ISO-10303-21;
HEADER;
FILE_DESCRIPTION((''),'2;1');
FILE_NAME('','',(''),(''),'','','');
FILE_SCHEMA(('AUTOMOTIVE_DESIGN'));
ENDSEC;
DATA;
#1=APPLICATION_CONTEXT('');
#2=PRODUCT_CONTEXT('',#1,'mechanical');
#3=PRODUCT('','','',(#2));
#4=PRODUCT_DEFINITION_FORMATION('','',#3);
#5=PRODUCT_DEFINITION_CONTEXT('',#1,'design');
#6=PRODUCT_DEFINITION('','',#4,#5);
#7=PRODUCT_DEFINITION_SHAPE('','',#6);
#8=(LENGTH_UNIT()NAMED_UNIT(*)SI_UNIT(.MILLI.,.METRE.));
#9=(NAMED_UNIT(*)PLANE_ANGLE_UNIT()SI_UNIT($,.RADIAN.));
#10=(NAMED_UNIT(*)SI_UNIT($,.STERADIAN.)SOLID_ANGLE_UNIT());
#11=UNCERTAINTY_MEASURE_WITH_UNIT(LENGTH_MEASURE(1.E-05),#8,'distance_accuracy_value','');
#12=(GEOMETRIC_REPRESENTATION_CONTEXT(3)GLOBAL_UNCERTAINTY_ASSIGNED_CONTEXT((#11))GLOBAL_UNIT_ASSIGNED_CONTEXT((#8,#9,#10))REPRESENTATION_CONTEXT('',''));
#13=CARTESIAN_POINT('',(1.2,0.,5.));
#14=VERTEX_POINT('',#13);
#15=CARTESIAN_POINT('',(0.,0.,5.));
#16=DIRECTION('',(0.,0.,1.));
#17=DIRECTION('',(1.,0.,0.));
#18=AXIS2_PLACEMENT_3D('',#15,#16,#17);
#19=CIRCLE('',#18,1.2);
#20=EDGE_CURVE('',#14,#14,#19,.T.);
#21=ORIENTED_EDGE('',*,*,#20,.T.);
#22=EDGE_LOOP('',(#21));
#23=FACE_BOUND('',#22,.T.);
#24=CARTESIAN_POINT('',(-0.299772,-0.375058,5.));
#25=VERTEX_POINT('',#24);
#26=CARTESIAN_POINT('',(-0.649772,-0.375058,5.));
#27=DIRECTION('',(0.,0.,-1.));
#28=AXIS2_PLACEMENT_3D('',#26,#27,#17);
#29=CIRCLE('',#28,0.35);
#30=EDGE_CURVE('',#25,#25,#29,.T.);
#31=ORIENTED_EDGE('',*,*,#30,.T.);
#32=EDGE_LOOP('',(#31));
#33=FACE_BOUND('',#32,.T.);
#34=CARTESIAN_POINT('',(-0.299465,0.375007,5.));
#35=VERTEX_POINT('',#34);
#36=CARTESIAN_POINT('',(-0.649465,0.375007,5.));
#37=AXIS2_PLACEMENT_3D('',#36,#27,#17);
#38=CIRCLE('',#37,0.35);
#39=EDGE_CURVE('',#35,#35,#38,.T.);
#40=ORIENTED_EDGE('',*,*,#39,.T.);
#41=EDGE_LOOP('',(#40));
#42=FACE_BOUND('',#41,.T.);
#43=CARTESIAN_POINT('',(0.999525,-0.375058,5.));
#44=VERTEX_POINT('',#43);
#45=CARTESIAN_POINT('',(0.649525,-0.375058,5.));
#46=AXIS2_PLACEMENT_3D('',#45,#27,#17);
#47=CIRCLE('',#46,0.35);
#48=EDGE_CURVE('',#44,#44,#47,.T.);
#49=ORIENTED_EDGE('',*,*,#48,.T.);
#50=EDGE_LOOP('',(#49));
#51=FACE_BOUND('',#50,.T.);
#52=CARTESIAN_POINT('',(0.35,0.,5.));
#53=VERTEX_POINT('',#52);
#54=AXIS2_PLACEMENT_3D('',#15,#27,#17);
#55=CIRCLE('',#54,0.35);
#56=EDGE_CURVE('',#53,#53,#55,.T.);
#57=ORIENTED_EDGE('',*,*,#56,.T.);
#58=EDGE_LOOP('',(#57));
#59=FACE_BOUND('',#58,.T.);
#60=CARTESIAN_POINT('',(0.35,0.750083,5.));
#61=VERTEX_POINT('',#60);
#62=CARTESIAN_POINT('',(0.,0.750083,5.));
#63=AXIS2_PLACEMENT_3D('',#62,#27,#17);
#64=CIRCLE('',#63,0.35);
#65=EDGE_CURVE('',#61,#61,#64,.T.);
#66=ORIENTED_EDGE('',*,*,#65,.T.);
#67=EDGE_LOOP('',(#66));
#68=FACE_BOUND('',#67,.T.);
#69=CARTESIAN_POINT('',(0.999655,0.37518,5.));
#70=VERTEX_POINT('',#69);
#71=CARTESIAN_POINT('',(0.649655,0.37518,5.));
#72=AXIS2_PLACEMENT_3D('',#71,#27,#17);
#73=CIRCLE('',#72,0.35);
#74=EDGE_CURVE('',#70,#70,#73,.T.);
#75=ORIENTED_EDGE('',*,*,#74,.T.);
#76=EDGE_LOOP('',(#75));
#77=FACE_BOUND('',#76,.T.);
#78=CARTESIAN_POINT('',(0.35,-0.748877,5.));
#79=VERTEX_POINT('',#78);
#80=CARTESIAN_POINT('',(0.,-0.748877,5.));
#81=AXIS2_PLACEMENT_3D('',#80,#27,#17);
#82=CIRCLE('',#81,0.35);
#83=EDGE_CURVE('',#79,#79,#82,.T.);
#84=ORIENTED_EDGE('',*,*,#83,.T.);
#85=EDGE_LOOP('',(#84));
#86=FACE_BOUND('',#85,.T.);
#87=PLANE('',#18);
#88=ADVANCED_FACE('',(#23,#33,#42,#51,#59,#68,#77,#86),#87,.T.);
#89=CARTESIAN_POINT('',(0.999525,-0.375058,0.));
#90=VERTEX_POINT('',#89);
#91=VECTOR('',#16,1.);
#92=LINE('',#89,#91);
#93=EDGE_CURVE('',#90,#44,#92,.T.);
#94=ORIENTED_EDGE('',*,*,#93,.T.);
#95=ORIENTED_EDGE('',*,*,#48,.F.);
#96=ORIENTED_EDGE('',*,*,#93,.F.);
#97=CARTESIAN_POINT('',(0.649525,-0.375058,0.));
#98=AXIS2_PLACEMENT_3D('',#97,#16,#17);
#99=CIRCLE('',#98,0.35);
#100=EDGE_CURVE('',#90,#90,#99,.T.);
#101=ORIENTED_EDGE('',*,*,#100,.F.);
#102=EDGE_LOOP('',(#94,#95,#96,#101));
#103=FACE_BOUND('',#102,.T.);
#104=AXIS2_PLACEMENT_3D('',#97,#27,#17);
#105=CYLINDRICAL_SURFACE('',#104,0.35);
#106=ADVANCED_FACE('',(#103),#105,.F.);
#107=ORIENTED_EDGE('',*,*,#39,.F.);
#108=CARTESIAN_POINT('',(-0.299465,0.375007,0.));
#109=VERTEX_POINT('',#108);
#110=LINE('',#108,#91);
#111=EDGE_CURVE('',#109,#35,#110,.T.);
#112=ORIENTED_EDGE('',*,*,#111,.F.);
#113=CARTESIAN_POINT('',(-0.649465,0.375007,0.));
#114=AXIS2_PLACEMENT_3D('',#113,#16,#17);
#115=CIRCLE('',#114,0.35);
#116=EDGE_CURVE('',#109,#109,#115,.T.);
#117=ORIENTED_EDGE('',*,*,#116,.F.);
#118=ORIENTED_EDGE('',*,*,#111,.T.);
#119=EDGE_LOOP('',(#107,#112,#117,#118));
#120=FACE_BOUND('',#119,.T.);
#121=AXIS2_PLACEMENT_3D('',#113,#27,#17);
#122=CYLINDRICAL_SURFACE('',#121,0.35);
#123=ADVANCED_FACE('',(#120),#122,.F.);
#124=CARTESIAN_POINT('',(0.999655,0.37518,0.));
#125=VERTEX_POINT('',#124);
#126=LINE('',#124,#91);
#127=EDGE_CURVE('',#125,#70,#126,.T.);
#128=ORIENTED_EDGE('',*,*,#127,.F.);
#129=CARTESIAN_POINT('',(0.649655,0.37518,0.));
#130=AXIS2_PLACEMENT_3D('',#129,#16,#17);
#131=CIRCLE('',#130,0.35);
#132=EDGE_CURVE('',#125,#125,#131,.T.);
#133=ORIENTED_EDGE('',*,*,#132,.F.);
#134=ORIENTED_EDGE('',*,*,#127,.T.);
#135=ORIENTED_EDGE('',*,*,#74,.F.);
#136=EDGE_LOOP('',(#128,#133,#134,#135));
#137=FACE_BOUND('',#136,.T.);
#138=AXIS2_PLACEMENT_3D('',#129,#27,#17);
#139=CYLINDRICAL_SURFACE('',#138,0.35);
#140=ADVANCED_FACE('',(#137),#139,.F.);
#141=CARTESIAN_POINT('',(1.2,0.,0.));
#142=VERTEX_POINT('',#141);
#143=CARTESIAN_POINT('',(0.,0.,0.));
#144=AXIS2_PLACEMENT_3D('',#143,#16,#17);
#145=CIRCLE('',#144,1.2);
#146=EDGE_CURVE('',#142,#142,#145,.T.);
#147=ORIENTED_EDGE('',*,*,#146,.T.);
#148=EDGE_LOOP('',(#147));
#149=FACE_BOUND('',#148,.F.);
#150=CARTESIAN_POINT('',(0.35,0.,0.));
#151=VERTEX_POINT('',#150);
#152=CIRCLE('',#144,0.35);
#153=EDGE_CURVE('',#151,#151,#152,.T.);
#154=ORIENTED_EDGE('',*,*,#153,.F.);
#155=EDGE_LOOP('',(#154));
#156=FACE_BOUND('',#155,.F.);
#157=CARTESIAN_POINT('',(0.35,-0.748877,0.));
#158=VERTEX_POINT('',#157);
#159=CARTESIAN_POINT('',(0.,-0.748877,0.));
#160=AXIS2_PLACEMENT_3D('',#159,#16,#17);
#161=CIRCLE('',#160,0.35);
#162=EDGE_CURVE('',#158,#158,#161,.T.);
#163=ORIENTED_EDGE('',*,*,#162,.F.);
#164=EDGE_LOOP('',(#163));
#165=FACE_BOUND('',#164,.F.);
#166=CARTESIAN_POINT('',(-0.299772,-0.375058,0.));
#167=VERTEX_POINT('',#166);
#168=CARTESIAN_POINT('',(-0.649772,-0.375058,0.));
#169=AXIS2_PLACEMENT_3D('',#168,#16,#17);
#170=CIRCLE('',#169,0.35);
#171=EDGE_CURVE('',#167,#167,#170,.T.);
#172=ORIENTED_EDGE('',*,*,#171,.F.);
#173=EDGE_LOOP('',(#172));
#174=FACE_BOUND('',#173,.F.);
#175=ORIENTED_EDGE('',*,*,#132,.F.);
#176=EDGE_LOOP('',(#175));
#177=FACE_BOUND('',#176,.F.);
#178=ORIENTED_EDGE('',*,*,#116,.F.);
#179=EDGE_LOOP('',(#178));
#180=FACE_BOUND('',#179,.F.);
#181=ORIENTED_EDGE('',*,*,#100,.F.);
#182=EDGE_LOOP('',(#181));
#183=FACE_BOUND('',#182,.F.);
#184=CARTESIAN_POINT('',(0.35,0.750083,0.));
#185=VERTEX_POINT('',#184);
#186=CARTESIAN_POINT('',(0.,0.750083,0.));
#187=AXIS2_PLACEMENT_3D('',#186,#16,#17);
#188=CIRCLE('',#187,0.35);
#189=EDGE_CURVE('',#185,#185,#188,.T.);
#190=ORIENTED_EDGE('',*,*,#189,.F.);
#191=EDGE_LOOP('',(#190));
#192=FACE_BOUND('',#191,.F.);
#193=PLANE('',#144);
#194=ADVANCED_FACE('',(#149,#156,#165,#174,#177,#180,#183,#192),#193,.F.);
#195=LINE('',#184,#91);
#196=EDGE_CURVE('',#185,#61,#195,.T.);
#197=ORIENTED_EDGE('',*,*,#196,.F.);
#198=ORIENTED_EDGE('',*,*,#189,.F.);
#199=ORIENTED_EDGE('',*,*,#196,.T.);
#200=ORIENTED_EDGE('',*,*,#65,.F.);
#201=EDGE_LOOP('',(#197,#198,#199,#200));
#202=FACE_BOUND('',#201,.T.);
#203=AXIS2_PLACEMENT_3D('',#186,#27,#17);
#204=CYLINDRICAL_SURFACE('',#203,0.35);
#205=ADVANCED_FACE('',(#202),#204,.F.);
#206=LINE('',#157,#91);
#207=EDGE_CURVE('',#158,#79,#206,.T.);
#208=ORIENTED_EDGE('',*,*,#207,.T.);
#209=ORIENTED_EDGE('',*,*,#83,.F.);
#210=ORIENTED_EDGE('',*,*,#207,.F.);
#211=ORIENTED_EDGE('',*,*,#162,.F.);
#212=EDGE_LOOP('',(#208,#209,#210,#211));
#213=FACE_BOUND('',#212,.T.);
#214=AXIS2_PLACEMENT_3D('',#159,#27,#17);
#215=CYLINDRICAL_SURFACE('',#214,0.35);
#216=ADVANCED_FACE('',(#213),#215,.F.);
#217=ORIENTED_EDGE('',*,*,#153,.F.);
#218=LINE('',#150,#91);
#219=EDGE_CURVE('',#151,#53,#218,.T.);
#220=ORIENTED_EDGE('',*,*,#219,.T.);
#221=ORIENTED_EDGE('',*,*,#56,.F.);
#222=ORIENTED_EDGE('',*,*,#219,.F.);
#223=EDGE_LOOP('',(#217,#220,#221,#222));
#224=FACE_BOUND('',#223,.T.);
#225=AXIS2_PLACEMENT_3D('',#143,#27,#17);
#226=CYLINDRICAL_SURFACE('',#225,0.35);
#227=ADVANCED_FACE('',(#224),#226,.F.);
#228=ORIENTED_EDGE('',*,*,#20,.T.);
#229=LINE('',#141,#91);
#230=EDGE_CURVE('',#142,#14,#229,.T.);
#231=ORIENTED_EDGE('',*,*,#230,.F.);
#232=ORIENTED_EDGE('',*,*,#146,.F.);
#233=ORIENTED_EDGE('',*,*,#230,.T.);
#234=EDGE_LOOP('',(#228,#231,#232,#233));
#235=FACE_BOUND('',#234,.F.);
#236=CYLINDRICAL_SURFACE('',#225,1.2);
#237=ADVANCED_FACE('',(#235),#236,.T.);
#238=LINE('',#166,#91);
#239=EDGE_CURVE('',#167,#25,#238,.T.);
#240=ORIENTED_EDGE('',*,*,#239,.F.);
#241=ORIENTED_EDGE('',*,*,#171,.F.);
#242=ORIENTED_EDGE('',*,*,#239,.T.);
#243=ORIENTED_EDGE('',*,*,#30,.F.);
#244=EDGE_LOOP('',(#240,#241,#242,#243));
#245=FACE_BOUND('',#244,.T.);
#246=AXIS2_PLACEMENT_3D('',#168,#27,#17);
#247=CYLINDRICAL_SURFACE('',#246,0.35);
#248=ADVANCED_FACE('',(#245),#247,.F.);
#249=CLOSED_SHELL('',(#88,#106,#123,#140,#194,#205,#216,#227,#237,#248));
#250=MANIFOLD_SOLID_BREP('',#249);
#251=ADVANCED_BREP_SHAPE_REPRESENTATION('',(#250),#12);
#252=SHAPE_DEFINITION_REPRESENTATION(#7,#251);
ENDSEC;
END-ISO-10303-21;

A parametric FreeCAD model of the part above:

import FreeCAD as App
import Part
import Sketcher

V = App.Vector
Q = App.Units.Quantity

doc = App.newDocument("Part")
body = doc.addObject("PartDesign::Body", "Body")

# Sketch on XY plane
sketch1 = body.newObject("Sketcher::SketchObject", "Sketch")
sketch1.AttachmentSupport = (doc.getObject("XY_Plane"), [""])
sketch1.MapMode = "FlatFace"
sketch1.addGeometry(Part.Circle(V(0, 0, 0), V(0, 0, 1), 1.2), False)
sketch1.addConstraint([
    Sketcher.Constraint("Coincident", 0, 3, -1, 1),
    Sketcher.Constraint("Diameter", 0, Q("2.4 mm")),
])
pad1 = body.newObject("PartDesign::Pad", "Pad")
pad1.Profile = sketch1
pad1.Length = 5

# Sketch on XY plane
sketch2 = body.newObject("Sketcher::SketchObject", "Sketch001")
sketch2.AttachmentSupport = (doc.getObject("XY_Plane"), [""])
sketch2.MapMode = "FlatFace"
sketch2.addGeometry([
    Part.Circle(V(0, 0, 0), V(0, 0, 1), 0.35),  # 0
    Part.Circle(V(0, 0.75, 0), V(0, 0, 1), 0.35),  # 1
    Part.Circle(V(0.65, 0.38, 0), V(0, 0, 1), 0.35),  # 2
    Part.Circle(V(0.65, -0.38, 0), V(0, 0, 1), 0.35),  # 3
    Part.Circle(V(0, -0.75, 0), V(0, 0, 1), 0.35),  # 4
    Part.Circle(V(-0.65, -0.38, 0), V(0, 0, 1), 0.35),  # 5
    Part.Circle(V(-0.65, 0.38, 0), V(0, 0, 1), 0.35),  # 6
], False)
sketch2.addConstraint([
    Sketcher.Constraint("Coincident", 0, 3, -1, 1),
    Sketcher.Constraint("Equal", 0, 1),
    Sketcher.Constraint("Equal", 1, 2),
    Sketcher.Constraint("Equal", 2, 3),
    Sketcher.Constraint("Equal", 3, 4),
    Sketcher.Constraint("Equal", 4, 5),
    Sketcher.Constraint("Equal", 5, 6),
    Sketcher.Constraint("PointOnObject", 1, 3, -2),
    Sketcher.Constraint("PointOnObject", 4, 3, -2),
    Sketcher.Constraint("Horizontal", 3, 3, 5, 3),
    Sketcher.Constraint("Diameter", 0, Q("0.7 mm")),
    Sketcher.Constraint("DistanceY", -1, 1, 2, 3, Q("0.37518 mm")),
    Sketcher.Constraint("DistanceX", 3, 3, 2, 3, Q("0.00013 mm")),
    Sketcher.Constraint("DistanceY", 3, 3, 1, 3, Q("1.125141 mm")),
    Sketcher.Constraint("DistanceY", 4, 3, 3, 3, Q("0.373819 mm")),
    Sketcher.Constraint("DistanceX", 6, 3, 2, 3, Q("1.29912 mm")),
    Sketcher.Constraint("DistanceY", -1, 1, 1, 3, Q("0.750083 mm")),
    Sketcher.Constraint("DistanceX", -1, 1, 2, 3, Q("0.649655 mm")),
    Sketcher.Constraint("DistanceX", 5, 3, -1, 1, Q("0.649772 mm")),
    Sketcher.Constraint("DistanceY", -1, 1, 6, 3, Q("0.375007 mm")),
])
pocket1 = body.newObject("PartDesign::Pocket", "Pocket")
pocket1.Profile = sketch2
pocket1.Type = "ThroughAll"
pocket1.Reversed = True

doc.recompute()
